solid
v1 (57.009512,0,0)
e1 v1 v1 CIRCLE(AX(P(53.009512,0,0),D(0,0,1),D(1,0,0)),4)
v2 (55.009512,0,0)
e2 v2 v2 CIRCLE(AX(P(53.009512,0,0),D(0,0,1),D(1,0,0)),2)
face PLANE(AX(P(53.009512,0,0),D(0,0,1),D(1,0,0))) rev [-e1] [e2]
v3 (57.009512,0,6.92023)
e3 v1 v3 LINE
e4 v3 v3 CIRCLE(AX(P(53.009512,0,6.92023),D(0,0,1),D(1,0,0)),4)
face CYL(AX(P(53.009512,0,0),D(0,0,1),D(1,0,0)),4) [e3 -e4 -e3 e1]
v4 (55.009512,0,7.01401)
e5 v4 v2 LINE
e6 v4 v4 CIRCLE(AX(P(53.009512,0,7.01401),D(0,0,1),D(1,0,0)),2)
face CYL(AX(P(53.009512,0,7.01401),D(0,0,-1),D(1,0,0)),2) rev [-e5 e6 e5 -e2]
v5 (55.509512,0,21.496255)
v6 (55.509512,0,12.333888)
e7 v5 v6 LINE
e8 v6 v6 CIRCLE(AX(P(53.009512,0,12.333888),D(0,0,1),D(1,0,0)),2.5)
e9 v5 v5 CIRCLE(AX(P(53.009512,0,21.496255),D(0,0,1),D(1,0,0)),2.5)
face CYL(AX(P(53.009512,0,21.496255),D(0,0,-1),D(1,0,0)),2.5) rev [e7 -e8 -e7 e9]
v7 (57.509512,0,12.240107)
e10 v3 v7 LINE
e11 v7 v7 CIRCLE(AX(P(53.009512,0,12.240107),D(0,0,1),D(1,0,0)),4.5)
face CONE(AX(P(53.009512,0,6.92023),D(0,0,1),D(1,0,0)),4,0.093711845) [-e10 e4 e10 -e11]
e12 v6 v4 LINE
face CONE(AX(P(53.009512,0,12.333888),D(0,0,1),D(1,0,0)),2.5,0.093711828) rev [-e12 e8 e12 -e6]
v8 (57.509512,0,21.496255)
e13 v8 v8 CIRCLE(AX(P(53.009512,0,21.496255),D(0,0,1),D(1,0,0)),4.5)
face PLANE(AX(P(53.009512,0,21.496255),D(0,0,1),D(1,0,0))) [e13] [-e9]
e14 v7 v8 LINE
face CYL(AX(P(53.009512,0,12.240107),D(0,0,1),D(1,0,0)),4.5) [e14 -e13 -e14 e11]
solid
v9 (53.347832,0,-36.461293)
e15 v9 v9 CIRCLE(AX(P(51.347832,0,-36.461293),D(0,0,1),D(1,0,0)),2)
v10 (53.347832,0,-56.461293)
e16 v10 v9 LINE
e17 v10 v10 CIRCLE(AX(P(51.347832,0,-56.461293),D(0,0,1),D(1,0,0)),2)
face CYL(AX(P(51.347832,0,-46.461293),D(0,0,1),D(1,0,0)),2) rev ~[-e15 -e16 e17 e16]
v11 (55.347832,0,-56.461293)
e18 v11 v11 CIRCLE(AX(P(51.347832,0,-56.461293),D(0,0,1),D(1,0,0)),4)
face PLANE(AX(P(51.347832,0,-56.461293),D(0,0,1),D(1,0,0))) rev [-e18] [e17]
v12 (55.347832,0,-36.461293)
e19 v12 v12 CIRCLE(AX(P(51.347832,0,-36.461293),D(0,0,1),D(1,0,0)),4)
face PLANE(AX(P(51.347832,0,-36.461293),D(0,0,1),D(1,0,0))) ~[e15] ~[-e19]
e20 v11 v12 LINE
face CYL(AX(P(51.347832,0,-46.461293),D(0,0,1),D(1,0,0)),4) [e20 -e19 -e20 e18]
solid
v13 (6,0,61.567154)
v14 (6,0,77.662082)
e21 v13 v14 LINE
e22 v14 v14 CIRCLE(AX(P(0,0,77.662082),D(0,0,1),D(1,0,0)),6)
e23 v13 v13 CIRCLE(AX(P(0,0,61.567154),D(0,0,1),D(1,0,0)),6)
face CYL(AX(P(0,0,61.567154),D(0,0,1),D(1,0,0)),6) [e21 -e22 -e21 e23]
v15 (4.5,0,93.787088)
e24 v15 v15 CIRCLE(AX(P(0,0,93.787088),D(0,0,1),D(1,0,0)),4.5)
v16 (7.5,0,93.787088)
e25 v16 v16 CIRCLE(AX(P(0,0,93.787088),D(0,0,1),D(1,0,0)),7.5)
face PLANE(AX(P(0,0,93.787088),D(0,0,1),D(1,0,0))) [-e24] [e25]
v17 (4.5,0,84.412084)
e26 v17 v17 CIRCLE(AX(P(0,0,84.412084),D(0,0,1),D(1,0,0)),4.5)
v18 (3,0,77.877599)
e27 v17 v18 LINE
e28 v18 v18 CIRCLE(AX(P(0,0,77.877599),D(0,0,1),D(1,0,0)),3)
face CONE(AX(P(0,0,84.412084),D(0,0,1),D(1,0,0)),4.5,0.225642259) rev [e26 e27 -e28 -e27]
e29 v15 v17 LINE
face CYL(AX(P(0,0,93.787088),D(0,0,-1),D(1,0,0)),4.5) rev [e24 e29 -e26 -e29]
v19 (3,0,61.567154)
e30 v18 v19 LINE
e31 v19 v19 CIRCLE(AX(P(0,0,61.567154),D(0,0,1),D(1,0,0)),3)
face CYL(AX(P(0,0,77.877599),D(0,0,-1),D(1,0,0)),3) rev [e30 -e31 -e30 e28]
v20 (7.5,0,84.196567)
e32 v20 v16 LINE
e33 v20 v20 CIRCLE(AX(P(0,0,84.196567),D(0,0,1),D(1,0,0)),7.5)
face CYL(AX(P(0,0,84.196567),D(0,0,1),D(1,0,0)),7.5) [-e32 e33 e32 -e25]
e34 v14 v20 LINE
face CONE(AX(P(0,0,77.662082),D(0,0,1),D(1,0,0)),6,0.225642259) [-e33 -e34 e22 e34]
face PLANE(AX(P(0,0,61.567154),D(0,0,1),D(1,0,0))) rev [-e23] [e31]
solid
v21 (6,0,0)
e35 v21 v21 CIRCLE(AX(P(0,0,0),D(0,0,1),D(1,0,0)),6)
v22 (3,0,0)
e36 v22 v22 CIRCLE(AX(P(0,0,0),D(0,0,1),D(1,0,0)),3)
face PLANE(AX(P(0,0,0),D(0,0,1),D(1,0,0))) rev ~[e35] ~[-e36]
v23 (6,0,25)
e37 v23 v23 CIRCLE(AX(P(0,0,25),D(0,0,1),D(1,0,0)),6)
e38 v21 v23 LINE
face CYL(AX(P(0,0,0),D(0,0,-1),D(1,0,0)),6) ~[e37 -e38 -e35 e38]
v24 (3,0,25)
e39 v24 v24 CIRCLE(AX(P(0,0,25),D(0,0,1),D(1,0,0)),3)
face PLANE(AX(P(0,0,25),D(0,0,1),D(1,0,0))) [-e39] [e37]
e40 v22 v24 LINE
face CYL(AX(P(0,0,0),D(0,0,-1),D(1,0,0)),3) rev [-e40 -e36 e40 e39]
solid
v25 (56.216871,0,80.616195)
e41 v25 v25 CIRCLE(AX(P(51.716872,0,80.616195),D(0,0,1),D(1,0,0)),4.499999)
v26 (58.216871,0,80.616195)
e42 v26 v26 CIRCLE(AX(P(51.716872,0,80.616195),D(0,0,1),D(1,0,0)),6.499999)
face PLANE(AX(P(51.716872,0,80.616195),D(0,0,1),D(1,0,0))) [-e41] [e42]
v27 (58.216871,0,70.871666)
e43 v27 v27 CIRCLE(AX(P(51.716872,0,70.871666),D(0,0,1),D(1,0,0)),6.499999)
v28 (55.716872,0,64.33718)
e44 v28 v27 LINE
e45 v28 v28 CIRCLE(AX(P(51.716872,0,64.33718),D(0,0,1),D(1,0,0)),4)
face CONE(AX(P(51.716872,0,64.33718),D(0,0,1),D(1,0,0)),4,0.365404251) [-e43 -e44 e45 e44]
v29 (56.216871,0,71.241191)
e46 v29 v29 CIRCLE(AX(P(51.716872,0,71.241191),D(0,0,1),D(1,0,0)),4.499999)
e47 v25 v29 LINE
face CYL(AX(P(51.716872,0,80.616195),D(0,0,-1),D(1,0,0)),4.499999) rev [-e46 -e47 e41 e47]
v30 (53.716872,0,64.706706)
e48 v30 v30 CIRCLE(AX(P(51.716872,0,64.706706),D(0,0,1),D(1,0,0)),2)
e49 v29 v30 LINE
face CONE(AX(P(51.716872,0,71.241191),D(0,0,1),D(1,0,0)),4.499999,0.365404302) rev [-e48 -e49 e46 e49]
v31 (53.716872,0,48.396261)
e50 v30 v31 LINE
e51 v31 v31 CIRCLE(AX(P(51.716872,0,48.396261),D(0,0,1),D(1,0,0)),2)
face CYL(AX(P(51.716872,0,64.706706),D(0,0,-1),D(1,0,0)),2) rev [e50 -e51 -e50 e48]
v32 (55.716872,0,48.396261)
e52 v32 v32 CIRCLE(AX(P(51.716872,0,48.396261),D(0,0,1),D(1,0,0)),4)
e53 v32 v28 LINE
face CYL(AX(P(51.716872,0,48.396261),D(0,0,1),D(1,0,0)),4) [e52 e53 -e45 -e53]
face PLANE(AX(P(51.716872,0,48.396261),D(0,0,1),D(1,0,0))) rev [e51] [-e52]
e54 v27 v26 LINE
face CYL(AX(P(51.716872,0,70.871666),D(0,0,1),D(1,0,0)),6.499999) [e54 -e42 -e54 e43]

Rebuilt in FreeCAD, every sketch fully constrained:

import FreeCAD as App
import Part
import Sketcher
from FreeCAD import Vector

doc = App.newDocument("Part")
params = doc.addObject("Spreadsheet::Sheet", "Params")
for row, (alias, value) in enumerate([
    ("sketch1_diameter", "12 mm"),
    ("sketch1_diameter2", "6 mm"),
    ("pad1_length", "25 mm"),
    ("sketch2_width", "3 mm"),
    ("revolution_angle", "360 deg"),
    ("sketch3_width", "2 mm"),
    ("revolution2_angle", "360 deg"),
    ("sketch4_width", "2 mm"),
    ("revolution3_angle", "360 deg"),
    ("sketch5_width", "2 mm"),
    ("sketch5_height", "20 mm"),
    ("revolution4_angle", "360 deg"),
], start=1):
    params.set(f"A{row}", alias)
    params.set(f"B{row}", "=" + value)
    params.setAlias(f"B{row}", alias)

body = doc.addObject("PartDesign::Body", "Body")

sketch1 = body.newObject("Sketcher::SketchObject", "Sketch")
sketch1.AttachmentSupport = (doc.getObject("XY_Plane"), [""])
sketch1.MapMode = "FlatFace"
sketch1.addGeometry([
    Part.Circle(Vector(0, 0, 0), Vector(0, 0, 1), 6),
    Part.Circle(Vector(0, 0, 0), Vector(0, 0, 1), 3),
], False)
sketch1.addConstraint([
    Sketcher.Constraint("Coincident", 0, 3, -1, 1),
    Sketcher.Constraint("Coincident", 1, 3, -1, 1),
    Sketcher.Constraint("Diameter", 0, 12.0),
    Sketcher.Constraint("Diameter", 1, 6.0),
])
sketch1.setExpression("Constraints[2]", "Params.sketch1_diameter")
sketch1.setExpression("Constraints[3]", "Params.sketch1_diameter2")
pad1 = body.newObject("PartDesign::Pad", "Pad")
pad1.Profile = sketch1
pad1.setExpression("Length", "Params.pad1_length")
body2 = doc.addObject("PartDesign::Body", "Body001")

sketch2 = body2.newObject("Sketcher::SketchObject", "Sketch001")
sketch2.AttachmentSupport = (doc.getObject("XZ_Plane001"), [""])
sketch2.MapMode = "FlatFace"
sketch2.addGeometry([
    Part.LineSegment(Vector(3, 77.877599, 0), Vector(3, 61.567154, 0)),
    Part.LineSegment(Vector(3, 61.567154, 0), Vector(6, 61.567154, 0)),
    Part.LineSegment(Vector(6, 61.567154, 0), Vector(6, 77.662082, 0)),
    Part.LineSegment(Vector(6, 77.662082, 0), Vector(7.5, 84.196567, 0)),
    Part.LineSegment(Vector(7.5, 84.196567, 0), Vector(7.5, 93.787088, 0)),
    Part.LineSegment(Vector(7.5, 93.787088, 0), Vector(4.5, 93.787088, 0)),
    Part.LineSegment(Vector(4.5, 93.787088, 0), Vector(4.5, 84.412084, 0)),
    Part.LineSegment(Vector(4.5, 84.412084, 0), Vector(3, 77.877599, 0)),
], False)
sketch2.addConstraint([
    Sketcher.Constraint("Coincident", 0, 2, 1, 1),
    Sketcher.Constraint("Coincident", 1, 2, 2, 1),
    Sketcher.Constraint("Coincident", 2, 2, 3, 1),
    Sketcher.Constraint("Coincident", 3, 2, 4, 1),
    Sketcher.Constraint("Coincident", 4, 2, 5, 1),
    Sketcher.Constraint("Coincident", 5, 2, 6, 1),
    Sketcher.Constraint("Coincident", 6, 2, 7, 1),
    Sketcher.Constraint("Coincident", 7, 2, 0, 1),
    Sketcher.Constraint("Vertical", 0),
    Sketcher.Constraint("Horizontal", 1),
    Sketcher.Constraint("Vertical", 2),
    Sketcher.Constraint("Vertical", 4),
    Sketcher.Constraint("Horizontal", 5),
    Sketcher.Constraint("Vertical", 6),
    Sketcher.Constraint("Parallel", 3, 7),
    Sketcher.Constraint("Equal", 1, 5),
    Sketcher.Constraint("DistanceX", 1, 1, 1, 2, 3.0),
    Sketcher.Constraint("DistanceX", -1, 1, 0, 2, 3.0),
    Sketcher.Constraint("DistanceX", -1, 1, 3, 2, 7.5),
    Sketcher.Constraint("DistanceY", 2, 2, 6, 2, 6.750002),
    Sketcher.Constraint("DistanceY", 4, 1, 4, 2, 9.590521),
    Sketcher.Constraint("DistanceY", -1, 1, 7, 2, 77.877599),
    Sketcher.Constraint("Distance", 3, 6.704438),
    Sketcher.Constraint("DistanceY", 0, 2, 0, 1, 16.310445),
])
sketch2.setExpression("Constraints[16]", "Params.sketch2_width")
revolution = body2.newObject("PartDesign::Revolution", "Revolution")
revolution.Profile = sketch2
revolution.ReferenceAxis = (sketch2, ["V_Axis"])
revolution.setExpression("Angle", "Params.revolution_angle")
body3 = doc.addObject("PartDesign::Body", "Body002")

sketch3 = body3.newObject("Sketcher::SketchObject", "Sketch002")
sketch3.AttachmentSupport = (doc.getObject("XZ_Plane002"), [""])
sketch3.MapMode = "FlatFace"
sketch3.addGeometry([
    Part.LineSegment(Vector(53.716872, 64.706706, 0), Vector(53.716872, 48.396261, 0)),
    Part.LineSegment(Vector(53.716872, 48.396261, 0), Vector(55.716872, 48.396261, 0)),
    Part.LineSegment(Vector(55.716872, 48.396261, 0), Vector(55.716872, 64.33718, 0)),
    Part.LineSegment(Vector(55.716872, 64.33718, 0), Vector(58.216871, 70.871666, 0)),
    Part.LineSegment(Vector(58.216871, 70.871666, 0), Vector(58.216871, 80.616195, 0)),
    Part.LineSegment(Vector(58.216871, 80.616195, 0), Vector(56.216871, 80.616195, 0)),
    Part.LineSegment(Vector(56.216871, 80.616195, 0), Vector(56.216871, 71.241191, 0)),
    Part.LineSegment(Vector(56.216871, 71.241191, 0), Vector(53.716872, 64.706706, 0)),
], False)
sketch3.addGeometry(Part.LineSegment(Vector(51.716872, 48.396261, 0), Vector(51.716872, 80.616195, 0)), True)
sketch3.addConstraint([
    Sketcher.Constraint("Coincident", 0, 2, 1, 1),
    Sketcher.Constraint("Coincident", 1, 2, 2, 1),
    Sketcher.Constraint("Coincident", 2, 2, 3, 1),
    Sketcher.Constraint("Coincident", 3, 2, 4, 1),
    Sketcher.Constraint("Coincident", 4, 2, 5, 1),
    Sketcher.Constraint("Coincident", 5, 2, 6, 1),
    Sketcher.Constraint("Coincident", 6, 2, 7, 1),
    Sketcher.Constraint("Coincident", 7, 2, 0, 1),
    Sketcher.Constraint("Vertical", 0),
    Sketcher.Constraint("Horizontal", 1),
    Sketcher.Constraint("Vertical", 2),
    Sketcher.Constraint("Vertical", 4),
    Sketcher.Constraint("Horizontal", 5),
    Sketcher.Constraint("Vertical", 6),
    Sketcher.Constraint("Vertical", 8),
    Sketcher.Constraint("Parallel", 3, 7),
    Sketcher.Constraint("Horizontal", 1, 2, 8, 1),
    Sketcher.Constraint("Horizontal", 5, 2, 8, 2),
    Sketcher.Constraint("Equal", 1, 5),
    Sketcher.Constraint("DistanceX", 1, 1, 1, 2, 2.0),
    Sketcher.Constraint("DistanceX", 8, 1, 0, 2, 2.0),
    Sketcher.Constraint("DistanceX", 2, 2, 3, 2, 2.499999),
    Sketcher.Constraint("DistanceY", 2, 1, 2, 2, 15.940919),
    Sketcher.Constraint("DistanceY", 4, 1, 4, 2, 9.744529),
    Sketcher.Constraint("Distance", 7, 6.996391),
    Sketcher.Constraint("DistanceY", 0, 2, 0, 1, 16.310445),
    Sketcher.Constraint("DistanceY", -1, 1, 0, 2, 48.396261),
    Sketcher.Constraint("DistanceX", -1, 1, 3, 2, 58.216871),
])
sketch3.setExpression("Constraints[19]", "Params.sketch3_width")
revolution2 = body3.newObject("PartDesign::Revolution", "Revolution001")
revolution2.Profile = sketch3
revolution2.ReferenceAxis = (sketch3, ["Axis0"])
revolution2.setExpression("Angle", "Params.revolution2_angle")
body4 = doc.addObject("PartDesign::Body", "Body003")

sketch4 = body4.newObject("Sketcher::SketchObject", "Sketch003")
sketch4.AttachmentSupport = (doc.getObject("XZ_Plane003"), [""])
sketch4.MapMode = "FlatFace"
sketch4.addGeometry([
    Part.LineSegment(Vector(55.009512, 7.01401, 0), Vector(55.009512, 0, 0)),
    Part.LineSegment(Vector(55.009512, 0, 0), Vector(57.009512, 0, 0)),
    Part.LineSegment(Vector(57.009512, 0, 0), Vector(57.009512, 6.92023, 0)),
    Part.LineSegment(Vector(57.009512, 6.92023, 0), Vector(57.509512, 12.240107, 0)),
    Part.LineSegment(Vector(57.509512, 12.240107, 0), Vector(57.509512, 21.496255, 0)),
    Part.LineSegment(Vector(57.509512, 21.496255, 0), Vector(55.509512, 21.496255, 0)),
    Part.LineSegment(Vector(55.509512, 21.496255, 0), Vector(55.509512, 12.333888, 0)),
    Part.LineSegment(Vector(55.509512, 12.333888, 0), Vector(55.009512, 7.01401, 0)),
], False)
sketch4.addGeometry(Part.LineSegment(Vector(53.009512, 0, 0), Vector(53.009512, 21.496255, 0)), True)
sketch4.addConstraint([
    Sketcher.Constraint("Coincident", 0, 2, 1, 1),
    Sketcher.Constraint("Coincident", 1, 2, 2, 1),
    Sketcher.Constraint("Coincident", 2, 2, 3, 1),
    Sketcher.Constraint("Coincident", 3, 2, 4, 1),
    Sketcher.Constraint("Coincident", 4, 2, 5, 1),
    Sketcher.Constraint("Coincident", 5, 2, 6, 1),
    Sketcher.Constraint("Coincident", 6, 2, 7, 1),
    Sketcher.Constraint("Coincident", 7, 2, 0, 1),
    Sketcher.Constraint("Vertical", 0),
    Sketcher.Constraint("Horizontal", 1),
    Sketcher.Constraint("Vertical", 2),
    Sketcher.Constraint("Vertical", 4),
    Sketcher.Constraint("Horizontal", 5),
    Sketcher.Constraint("Vertical", 6),
    Sketcher.Constraint("Vertical", 8),
    Sketcher.Constraint("PointOnObject", 0, 2, -1),
    Sketcher.Constraint("PointOnObject", 8, 1, -1),
    Sketcher.Constraint("Parallel", 3, 7),
    Sketcher.Constraint("Horizontal", 5, 2, 8, 2),
    Sketcher.Constraint("Equal", 1, 5),
    Sketcher.Constraint("DistanceX", 1, 1, 1, 2, 2.0),
    Sketcher.Constraint("DistanceX", 8, 1, 0, 2, 2.0),
    Sketcher.Constraint("DistanceX", 2, 2, 3, 2, 0.5),
    Sketcher.Constraint("DistanceY", 0, 2, 0, 1, 7.01401),
    Sketcher.Constraint("DistanceY", 2, 1, 2, 2, 6.92023),
    Sketcher.Constraint("DistanceY", 4, 1, 4, 2, 9.256148),
    Sketcher.Constraint("DistanceY", 8, 1, 8, 2, 21.496255),
    Sketcher.Constraint("DistanceX", -1, 1, 0, 2, 55.009512),
])
sketch4.setExpression("Constraints[20]", "Params.sketch4_width")
revolution3 = body4.newObject("PartDesign::Revolution", "Revolution002")
revolution3.Profile = sketch4
revolution3.ReferenceAxis = (sketch4, ["Axis0"])
revolution3.setExpression("Angle", "Params.revolution3_angle")
body5 = doc.addObject("PartDesign::Body", "Body004")

sketch5 = body5.newObject("Sketcher::SketchObject", "Sketch004")
sketch5.AttachmentSupport = (doc.getObject("XZ_Plane004"), [""])
sketch5.MapMode = "FlatFace"
sketch5.addGeometry([
    Part.LineSegment(Vector(53.347832, -36.461293, 0), Vector(53.347832, -56.461293, 0)),
    Part.LineSegment(Vector(53.347832, -56.461293, 0), Vector(55.347832, -56.461293, 0)),
    Part.LineSegment(Vector(55.347832, -56.461293, 0), Vector(55.347832, -36.461293, 0)),
    Part.LineSegment(Vector(55.347832, -36.461293, 0), Vector(53.347832, -36.461293, 0)),
], False)
sketch5.addGeometry(Part.LineSegment(Vector(51.347832, -56.461293, 0), Vector(51.347832, -36.461293, 0)), True)
sketch5.addConstraint([
    Sketcher.Constraint("Coincident", 0, 2, 1, 1),
    Sketcher.Constraint("Coincident", 1, 2, 2, 1),
    Sketcher.Constraint("Coincident", 2, 2, 3, 1),
    Sketcher.Constraint("Coincident", 3, 2, 0, 1),
    Sketcher.Constraint("Vertical", 0),
    Sketcher.Constraint("Horizontal", 1),
    Sketcher.Constraint("Vertical", 2),
    Sketcher.Constraint("Horizontal", 3),
    Sketcher.Constraint("Vertical", 4),
    Sketcher.Constraint("Horizontal", 1, 2, 4, 1),
    Sketcher.Constraint("Horizontal", 3, 2, 4, 2),
    Sketcher.Constraint("DistanceX", 1, 1, 1, 2, 2.0),
    Sketcher.Constraint("DistanceY", 0, 2, 0, 1, 20.0),
    Sketcher.Constraint("DistanceX", 4, 1, 0, 2, 2.0),
    Sketcher.Constraint("DistanceX", -1, 1, 0, 2, 53.347832),
    Sketcher.Constraint("DistanceY", 0, 2, -1, 1, 56.461293),
])
sketch5.setExpression("Constraints[11]", "Params.sketch5_width")
sketch5.setExpression("Constraints[12]", "Params.sketch5_height")
revolution4 = body5.newObject("PartDesign::Revolution", "Revolution003")
revolution4.Profile = sketch5
revolution4.ReferenceAxis = (sketch5, ["Axis0"])
revolution4.setExpression("Angle", "Params.revolution4_angle")

doc.recompute()
